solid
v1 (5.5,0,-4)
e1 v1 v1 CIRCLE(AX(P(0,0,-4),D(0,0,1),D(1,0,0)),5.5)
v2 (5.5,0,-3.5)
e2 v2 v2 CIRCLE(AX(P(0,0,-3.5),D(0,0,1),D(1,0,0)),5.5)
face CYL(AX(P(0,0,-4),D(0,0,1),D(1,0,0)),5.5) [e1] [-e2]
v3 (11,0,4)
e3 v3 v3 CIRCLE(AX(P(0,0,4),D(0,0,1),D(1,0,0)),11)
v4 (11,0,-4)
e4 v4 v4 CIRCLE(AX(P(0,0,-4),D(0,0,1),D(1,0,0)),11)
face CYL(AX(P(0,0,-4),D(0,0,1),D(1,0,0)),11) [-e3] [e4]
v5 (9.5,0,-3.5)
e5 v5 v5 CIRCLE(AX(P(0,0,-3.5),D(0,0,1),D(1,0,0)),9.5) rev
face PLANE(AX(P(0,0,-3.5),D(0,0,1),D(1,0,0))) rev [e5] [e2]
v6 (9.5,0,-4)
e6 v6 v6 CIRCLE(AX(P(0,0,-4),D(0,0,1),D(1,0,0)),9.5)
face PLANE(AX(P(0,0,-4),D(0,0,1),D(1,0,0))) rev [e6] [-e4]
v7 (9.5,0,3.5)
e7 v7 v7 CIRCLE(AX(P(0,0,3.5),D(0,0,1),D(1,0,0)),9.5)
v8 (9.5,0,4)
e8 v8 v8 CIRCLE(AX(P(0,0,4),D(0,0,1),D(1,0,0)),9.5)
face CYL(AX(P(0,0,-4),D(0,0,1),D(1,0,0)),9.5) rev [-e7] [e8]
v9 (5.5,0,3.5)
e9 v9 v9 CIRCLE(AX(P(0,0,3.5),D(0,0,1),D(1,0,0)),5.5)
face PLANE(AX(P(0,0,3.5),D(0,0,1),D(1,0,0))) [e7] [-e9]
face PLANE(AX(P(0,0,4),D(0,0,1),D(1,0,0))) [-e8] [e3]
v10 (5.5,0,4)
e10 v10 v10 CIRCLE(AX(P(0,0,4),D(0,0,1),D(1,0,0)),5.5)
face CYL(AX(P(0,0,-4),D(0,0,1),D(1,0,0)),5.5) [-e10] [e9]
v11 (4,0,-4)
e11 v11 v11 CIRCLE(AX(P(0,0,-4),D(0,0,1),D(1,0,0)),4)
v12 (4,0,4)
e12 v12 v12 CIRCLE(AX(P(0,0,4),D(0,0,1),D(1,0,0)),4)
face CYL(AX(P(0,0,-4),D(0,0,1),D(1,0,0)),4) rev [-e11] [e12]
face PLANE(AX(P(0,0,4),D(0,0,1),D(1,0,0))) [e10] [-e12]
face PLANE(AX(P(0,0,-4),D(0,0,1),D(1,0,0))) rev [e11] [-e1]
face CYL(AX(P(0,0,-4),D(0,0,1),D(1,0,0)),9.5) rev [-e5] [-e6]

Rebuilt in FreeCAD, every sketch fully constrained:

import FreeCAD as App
import Part
import Sketcher

doc = App.newDocument("Part")
body = doc.addObject("PartDesign::Body", "Body")

# Sketch on XY plane
sketch1 = body.newObject("Sketcher::SketchObject", "Sketch")
sketch1.AttachmentSupport = (doc.getObject("XY_Plane"), [""])
sketch1.MapMode = "FlatFace"
sketch1.addGeometry(Part.Circle(App.Vector(0, 0, 0), App.Vector(0, 0, 1), 11), False)
sketch1.addGeometry(Part.Circle(App.Vector(0, 0, 0), App.Vector(0, 0, 1), 10), False)
sketch1.addConstraint(Sketcher.Constraint("Coincident", 0, 3, -1, 1))
sketch1.addConstraint(Sketcher.Constraint("Coincident", 1, 3, -1, 1))
sketch1.addConstraint(Sketcher.Constraint("Diameter", 0, 22.0))
sketch1.addConstraint(Sketcher.Constraint("Diameter", 1, 19.0))
pad1 = body.newObject("PartDesign::Pad", "Pad")
pad1.Profile = sketch1
pad1.Type = "TwoLengths"
pad1.Length = 4
pad1.Length2 = 4
body2 = doc.addObject("PartDesign::Body", "Body001")

# Sketch on XY plane
sketch2 = body2.newObject("Sketcher::SketchObject", "Sketch001")
sketch2.AttachmentSupport = (doc.getObject("XY_Plane001"), [""])
sketch2.MapMode = "FlatFace"
sketch2.addGeometry(Part.Circle(App.Vector(0, 0, 0), App.Vector(0, 0, 1), 5.5), False)
sketch2.addGeometry(Part.Circle(App.Vector(0, 0, 0), App.Vector(0, 0, 1), 4), False)
sketch2.addConstraint(Sketcher.Constraint("Coincident", 0, 3, -1, 1))
sketch2.addConstraint(Sketcher.Constraint("Coincident", 1, 3, -1, 1))
sketch2.addConstraint(Sketcher.Constraint("Diameter", 0, 11.0))
sketch2.addConstraint(Sketcher.Constraint("Diameter", 1, 8.0))
pad2 = body2.newObject("PartDesign::Pad", "Pad001")
pad2.Profile = sketch2
pad2.Type = "TwoLengths"
pad2.Length = 4
pad2.Length2 = 4
body.AllowCompound = True
doc.recompute()

boolean = body.newObject("PartDesign::Boolean", "Boolean")
boolean.Type = "Fuse"
boolean.addObjects([body2])

# Sketch on XY plane
sketch3 = body.newObject("Sketcher::SketchObject", "Sketch002")
sketch3.AttachmentSupport = (doc.getObject("XY_Plane"), [""])
sketch3.MapMode = "FlatFace"
sketch3.addGeometry(Part.Circle(App.Vector(0, 0, 0), App.Vector(0, 0, 1), 10), False)
sketch3.addGeometry(Part.Circle(App.Vector(0, 0, 0), App.Vector(0, 0, 1), 6), False)
sketch3.addConstraint(Sketcher.Constraint("Coincident", 0, 3, -1, 1))
sketch3.addConstraint(Sketcher.Constraint("Coincident", 1, 3, -1, 1))
sketch3.addConstraint(Sketcher.Constraint("Diameter", 0, 19.0))
sketch3.addConstraint(Sketcher.Constraint("Diameter", 1, 11.0))
pad3 = body.newObject("PartDesign::Pad", "Pad002")
pad3.Profile = sketch3
pad3.Type = "TwoLengths"
pad3.Length = 3.5
pad3.Length2 = 3.5

doc.recompute()
